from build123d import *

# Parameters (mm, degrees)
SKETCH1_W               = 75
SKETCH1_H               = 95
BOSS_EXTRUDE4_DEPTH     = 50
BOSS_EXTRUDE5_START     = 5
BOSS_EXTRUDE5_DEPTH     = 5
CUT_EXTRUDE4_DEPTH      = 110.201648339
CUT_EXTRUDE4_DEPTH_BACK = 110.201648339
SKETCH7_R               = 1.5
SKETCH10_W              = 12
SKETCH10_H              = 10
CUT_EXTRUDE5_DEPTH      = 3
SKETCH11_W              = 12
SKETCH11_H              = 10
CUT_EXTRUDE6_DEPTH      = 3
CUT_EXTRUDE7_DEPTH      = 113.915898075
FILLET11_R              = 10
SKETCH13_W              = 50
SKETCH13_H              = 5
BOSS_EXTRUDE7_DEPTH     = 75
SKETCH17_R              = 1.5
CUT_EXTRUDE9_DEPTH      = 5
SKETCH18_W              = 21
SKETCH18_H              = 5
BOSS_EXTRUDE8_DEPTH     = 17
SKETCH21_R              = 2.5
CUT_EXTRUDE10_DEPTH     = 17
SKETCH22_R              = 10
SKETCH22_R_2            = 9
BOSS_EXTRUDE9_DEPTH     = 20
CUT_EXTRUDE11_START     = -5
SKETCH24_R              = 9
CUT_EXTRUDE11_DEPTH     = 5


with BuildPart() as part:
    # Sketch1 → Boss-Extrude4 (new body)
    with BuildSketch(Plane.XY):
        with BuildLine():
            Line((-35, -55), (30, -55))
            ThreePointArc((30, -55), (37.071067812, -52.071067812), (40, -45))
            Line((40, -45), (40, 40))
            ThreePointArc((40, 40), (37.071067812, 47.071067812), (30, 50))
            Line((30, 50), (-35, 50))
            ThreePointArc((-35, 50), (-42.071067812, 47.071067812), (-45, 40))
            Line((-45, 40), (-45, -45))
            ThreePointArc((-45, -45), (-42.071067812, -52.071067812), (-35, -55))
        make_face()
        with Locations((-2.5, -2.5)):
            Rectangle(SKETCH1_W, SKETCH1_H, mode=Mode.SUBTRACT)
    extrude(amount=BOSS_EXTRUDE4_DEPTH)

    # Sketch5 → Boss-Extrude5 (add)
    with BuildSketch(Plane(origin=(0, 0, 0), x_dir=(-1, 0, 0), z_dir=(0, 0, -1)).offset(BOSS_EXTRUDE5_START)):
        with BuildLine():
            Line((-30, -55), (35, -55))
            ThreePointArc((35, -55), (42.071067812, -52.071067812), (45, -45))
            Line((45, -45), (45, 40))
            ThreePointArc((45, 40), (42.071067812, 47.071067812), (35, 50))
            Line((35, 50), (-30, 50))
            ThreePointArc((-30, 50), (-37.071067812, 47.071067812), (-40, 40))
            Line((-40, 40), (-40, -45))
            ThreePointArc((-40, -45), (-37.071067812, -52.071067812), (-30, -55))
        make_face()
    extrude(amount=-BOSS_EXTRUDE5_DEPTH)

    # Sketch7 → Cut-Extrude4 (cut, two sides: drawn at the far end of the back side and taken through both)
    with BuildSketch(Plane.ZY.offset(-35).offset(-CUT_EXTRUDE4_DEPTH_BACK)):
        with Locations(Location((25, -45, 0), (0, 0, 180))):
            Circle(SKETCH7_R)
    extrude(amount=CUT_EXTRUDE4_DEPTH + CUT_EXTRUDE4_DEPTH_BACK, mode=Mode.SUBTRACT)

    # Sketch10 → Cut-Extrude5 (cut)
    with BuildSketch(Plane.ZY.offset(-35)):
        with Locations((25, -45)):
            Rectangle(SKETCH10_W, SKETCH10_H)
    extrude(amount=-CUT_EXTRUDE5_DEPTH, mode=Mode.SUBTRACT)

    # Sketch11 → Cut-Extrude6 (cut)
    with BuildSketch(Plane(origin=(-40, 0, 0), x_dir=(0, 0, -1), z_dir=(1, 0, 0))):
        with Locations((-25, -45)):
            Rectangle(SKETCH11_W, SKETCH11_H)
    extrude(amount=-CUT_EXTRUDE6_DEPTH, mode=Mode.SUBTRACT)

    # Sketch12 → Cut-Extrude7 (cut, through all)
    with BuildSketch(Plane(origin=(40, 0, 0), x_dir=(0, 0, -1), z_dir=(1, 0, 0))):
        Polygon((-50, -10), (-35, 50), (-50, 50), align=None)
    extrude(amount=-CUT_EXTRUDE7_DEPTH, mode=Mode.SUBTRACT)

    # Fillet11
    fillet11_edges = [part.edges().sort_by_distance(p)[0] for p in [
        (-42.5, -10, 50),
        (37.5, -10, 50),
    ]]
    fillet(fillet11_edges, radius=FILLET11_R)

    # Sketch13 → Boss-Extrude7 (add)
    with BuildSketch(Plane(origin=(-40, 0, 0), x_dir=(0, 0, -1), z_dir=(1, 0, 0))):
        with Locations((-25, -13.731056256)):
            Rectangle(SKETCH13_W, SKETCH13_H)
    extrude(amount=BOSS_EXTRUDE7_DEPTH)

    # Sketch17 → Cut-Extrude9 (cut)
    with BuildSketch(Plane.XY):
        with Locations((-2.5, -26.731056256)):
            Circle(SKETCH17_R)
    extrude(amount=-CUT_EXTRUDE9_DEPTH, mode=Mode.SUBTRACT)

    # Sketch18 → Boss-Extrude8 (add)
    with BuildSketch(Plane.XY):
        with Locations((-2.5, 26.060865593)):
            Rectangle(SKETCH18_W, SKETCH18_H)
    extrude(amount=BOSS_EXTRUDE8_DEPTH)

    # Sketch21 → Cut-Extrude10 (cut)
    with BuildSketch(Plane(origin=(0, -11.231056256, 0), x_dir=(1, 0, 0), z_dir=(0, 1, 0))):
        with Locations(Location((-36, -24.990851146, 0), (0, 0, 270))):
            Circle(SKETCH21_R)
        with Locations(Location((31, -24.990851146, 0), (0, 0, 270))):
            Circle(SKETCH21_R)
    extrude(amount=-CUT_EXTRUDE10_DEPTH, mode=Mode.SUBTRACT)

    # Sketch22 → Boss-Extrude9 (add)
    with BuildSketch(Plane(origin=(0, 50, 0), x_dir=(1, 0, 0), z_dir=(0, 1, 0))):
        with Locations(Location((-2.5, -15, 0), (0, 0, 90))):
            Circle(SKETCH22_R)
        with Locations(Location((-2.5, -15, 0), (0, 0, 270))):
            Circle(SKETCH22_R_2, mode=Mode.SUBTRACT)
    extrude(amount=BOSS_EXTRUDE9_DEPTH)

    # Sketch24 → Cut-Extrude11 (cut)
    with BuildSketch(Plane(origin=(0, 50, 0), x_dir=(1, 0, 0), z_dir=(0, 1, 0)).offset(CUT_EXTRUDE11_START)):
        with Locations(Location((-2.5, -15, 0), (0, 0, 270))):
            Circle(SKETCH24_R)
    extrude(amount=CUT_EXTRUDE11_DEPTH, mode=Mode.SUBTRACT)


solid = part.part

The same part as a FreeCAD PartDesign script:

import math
import FreeCAD as App
import Part
import Sketcher

V = App.Vector


def edges_at(feature, points):
    """Names of the edges that pass closest to the given points."""
    edges = feature.Shape.Edges
    near = lambda p: min(range(len(edges)), key=lambda i: edges[i].distToShape(Part.Vertex(*p))[0])
    return sorted({f"Edge{near(p) + 1}" for p in points})


def add_polygon(sketch, points):
    """Adds a closed chain of lines whose ends are joined by coincident constraints."""
    first, n = sketch.GeometryCount, len(points)
    for a, b in zip(points, points[1:] + points[:1]):
        sketch.addGeometry(Part.LineSegment(App.Vector(*a, 0), App.Vector(*b, 0)), False)
    for i in range(n):
        sketch.addConstraint(Sketcher.Constraint("Coincident", first + i, 2, first + (i + 1) % n, 1))

doc = App.newDocument("Part")
body = doc.addObject("PartDesign::Body", "Body")

# Sketch on XY plane
sketch1 = body.newObject("Sketcher::SketchObject", "Sketch")
sketch1.AttachmentSupport = (doc.getObject("XY_Plane"), [""])
sketch1.MapMode = "FlatFace"
sketch1.addGeometry(Part.LineSegment(V(-35, -55, 0), V(30, -55, 0)), False)  # 0
sketch1.addGeometry(Part.ArcOfCircle(Part.Circle(V(30, -45, 0), V(0, 0, 1), 10), math.radians(-90), math.radians(0)), False)  # 1
sketch1.addGeometry(Part.LineSegment(V(40, -45, 0), V(40, 40, 0)), False)  # 2
sketch1.addGeometry(Part.ArcOfCircle(Part.Circle(V(30, 40, 0), V(0, 0, 1), 10), math.radians(0), math.radians(90)), False)  # 3
sketch1.addGeometry(Part.LineSegment(V(30, 50, 0), V(-35, 50, 0)), False)  # 4
sketch1.addGeometry(Part.ArcOfCircle(Part.Circle(V(-35, 40, 0), V(0, 0, 1), 10), math.radians(90), math.radians(180)), False)  # 5
sketch1.addGeometry(Part.LineSegment(V(-45, 40, 0), V(-45, -45, 0)), False)  # 6
sketch1.addGeometry(Part.ArcOfCircle(Part.Circle(V(-35, -45, 0), V(0, 0, 1), 10), math.radians(180), math.radians(270)), False)  # 7
add_polygon(sketch1, [(35, -50), (-40, -50), (-40, 45), (35, 45)])  # lines 8-11
sketch1.addConstraint([
    Sketcher.Constraint("Tangent", 0, 2, 1, 1),
    Sketcher.Constraint("Tangent", 1, 2, 2, 1),
    Sketcher.Constraint("Tangent", 2, 2, 3, 1),
    Sketcher.Constraint("Tangent", 3, 2, 4, 1),
    Sketcher.Constraint("Tangent", 4, 2, 5, 1),
    Sketcher.Constraint("Tangent", 5, 2, 6, 1),
    Sketcher.Constraint("Tangent", 6, 2, 7, 1),
    Sketcher.Constraint("Tangent", 7, 2, 0, 1),
    Sketcher.Constraint("Horizontal", 0),
    Sketcher.Constraint("Vertical", 2),
    Sketcher.Constraint("Horizontal", 4),
    Sketcher.Constraint("Vertical", 6),
    Sketcher.Constraint("Horizontal", 8),
    Sketcher.Constraint("Vertical", 9),
    Sketcher.Constraint("Horizontal", 10),
    Sketcher.Constraint("Vertical", 11),
    Sketcher.Constraint("Equal", 1, 3),
    Sketcher.Constraint("Equal", 3, 5),
    Sketcher.Constraint("Equal", 5, 7),
    Sketcher.Constraint("Symmetric", 1, 2, 9, 2, -1, 1),
    Sketcher.Constraint("Symmetric", 4, 2, 11, 2, -1, 1),
    Sketcher.Constraint("Radius", 1, 10.0),
    Sketcher.Constraint("DistanceX", 0, 1, 0, 2, 65.0),
    Sketcher.Constraint("DistanceY", 2, 1, 2, 2, 85.0),
    Sketcher.Constraint("DistanceX", -1, 1, 1, 3, 30.0),
    Sketcher.Constraint("DistanceY", 1, 3, -1, 1, 45.0),
])
pad1 = body.newObject("PartDesign::Pad", "Pad")
pad1.Profile = sketch1
pad1.Length = 50

# Sketch on XY plane
sketch2 = body.newObject("Sketcher::SketchObject", "Sketch001")
sketch2.AttachmentSupport = (doc.getObject("XY_Plane"), [""])
sketch2.MapMode = "FlatFace"
sketch2.AttachmentOffset = App.Placement(V(0, 0, -5), App.Rotation())
sketch2.addGeometry([
    Part.LineSegment(V(30, -55, 0), V(-35, -55, 0)),  # 0
    Part.ArcOfCircle(Part.Circle(V(-35, -45, 0), V(0, 0, 1), 10), math.radians(180), math.radians(270)),  # 1
    Part.LineSegment(V(-45, -45, 0), V(-45, 40, 0)),  # 2
    Part.ArcOfCircle(Part.Circle(V(-35, 40, 0), V(0, 0, 1), 10), math.radians(90), math.radians(180)),  # 3
    Part.LineSegment(V(-35, 50, 0), V(30, 50, 0)),  # 4
    Part.ArcOfCircle(Part.Circle(V(30, 40, 0), V(0, 0, 1), 10), math.radians(0), math.radians(90)),  # 5
    Part.LineSegment(V(40, 40, 0), V(40, -45, 0)),  # 6
    Part.ArcOfCircle(Part.Circle(V(30, -45, 0), V(0, 0, 1), 10), math.radians(-90), math.radians(0)),  # 7
], False)
sketch2.addConstraint([
    Sketcher.Constraint("Tangent", 0, 2, 1, 2),
    Sketcher.Constraint("Tangent", 1, 1, 2, 1),
    Sketcher.Constraint("Tangent", 2, 2, 3, 2),
    Sketcher.Constraint("Tangent", 3, 1, 4, 1),
    Sketcher.Constraint("Tangent", 4, 2, 5, 2),
    Sketcher.Constraint("Tangent", 5, 1, 6, 1),
    Sketcher.Constraint("Tangent", 6, 2, 7, 2),
    Sketcher.Constraint("Tangent", 7, 1, 0, 1),
    Sketcher.Constraint("Horizontal", 0),
    Sketcher.Constraint("Vertical", 2),
    Sketcher.Constraint("Horizontal", 4),
    Sketcher.Constraint("Vertical", 6),
    Sketcher.Constraint("Equal", 1, 3),
    Sketcher.Constraint("Equal", 3, 5),
    Sketcher.Constraint("Equal", 5, 7),
    Sketcher.Constraint("Radius", 1, 10.0),
    Sketcher.Constraint("DistanceX", 0, 2, 0, 1, 65.0),
    Sketcher.Constraint("DistanceY", 2, 1, 2, 2, 85.0),
    Sketcher.Constraint("DistanceX", 1, 3, -1, 1, 35.0),
    Sketcher.Constraint("DistanceY", 1, 3, -1, 1, 45.0),
])
pad2 = body.newObject("PartDesign::Pad", "Pad001")
pad2.Profile = sketch2
pad2.Length = 5

# Sketch on YZ plane
sketch3 = body.newObject("Sketcher::SketchObject", "Sketch002")
sketch3.AttachmentSupport = (doc.getObject("YZ_Plane"), [""])
sketch3.MapMode = "FlatFace"
sketch3.AttachmentOffset = App.Placement(V(0, 0, 35), App.Rotation())
sketch3.addGeometry(Part.Circle(V(-45, 25, 0), V(0, 0, 1), 1.5), False)
sketch3.addConstraint([
    Sketcher.Constraint("Diameter", 0, 3.0),
    Sketcher.Constraint("DistanceX", 0, 3, -1, 1, 45.0),
    Sketcher.Constraint("DistanceY", -1, 1, 0, 3, 25.0),
])
pocket1 = body.newObject("PartDesign::Pocket", "Pocket")
pocket1.Profile = sketch3
pocket1.Type = "ThroughAll"
pocket1.Midplane = True

# Sketch on YZ plane
sketch4 = body.newObject("Sketcher::SketchObject", "Sketch003")
sketch4.AttachmentSupport = (doc.getObject("YZ_Plane"), [""])
sketch4.MapMode = "FlatFace"
sketch4.AttachmentOffset = App.Placement(V(0, 0, 35), App.Rotation())
add_polygon(sketch4, [(-40, 19), (-50, 19), (-50, 31), (-40, 31)])  # lines 0-3
sketch4.addConstraint([
    Sketcher.Constraint("Horizontal", 0),
    Sketcher.Constraint("Vertical", 1),
    Sketcher.Constraint("Horizontal", 2),
    Sketcher.Constraint("Vertical", 3),
    Sketcher.Constraint("DistanceX", 0, 2, 0, 1, 10.0),
    Sketcher.Constraint("DistanceY", 1, 1, 1, 2, 12.0),
    Sketcher.Constraint("DistanceX", 0, 2, -1, 1, 50.0),
    Sketcher.Constraint("DistanceY", -1, 1, 0, 2, 19.0),
])
pocket2 = body.newObject("PartDesign::Pocket", "Pocket001")
pocket2.Profile = sketch4
pocket2.Length = 3
pocket2.Reversed = True

# Sketch on YZ plane
sketch5 = body.newObject("Sketcher::SketchObject", "Sketch004")
sketch5.AttachmentSupport = (doc.getObject("YZ_Plane"), [""])
sketch5.MapMode = "FlatFace"
sketch5.AttachmentOffset = App.Placement(V(0, 0, -40), App.Rotation())
add_polygon(sketch5, [(-40, 31), (-50, 31), (-50, 19), (-40, 19)])  # lines 0-3
sketch5.addConstraint([
    Sketcher.Constraint("Horizontal", 0),
    Sketcher.Constraint("Vertical", 1),
    Sketcher.Constraint("Horizontal", 2),
    Sketcher.Constraint("Vertical", 3),
    Sketcher.Constraint("DistanceX", 0, 2, 0, 1, 10.0),
    Sketcher.Constraint("DistanceY", 1, 2, 1, 1, 12.0),
    Sketcher.Constraint("DistanceX", 0, 2, -1, 1, 50.0),
    Sketcher.Constraint("DistanceY", -1, 1, 0, 2, 31.0),
])
pocket3 = body.newObject("PartDesign::Pocket", "Pocket002")
pocket3.Profile = sketch5
pocket3.Length = 3

# Sketch on YZ plane
sketch6 = body.newObject("Sketcher::SketchObject", "Sketch005")
sketch6.AttachmentSupport = (doc.getObject("YZ_Plane"), [""])
sketch6.MapMode = "FlatFace"
sketch6.AttachmentOffset = App.Placement(V(0, 0, 40), App.Rotation())
add_polygon(sketch6, [(-10, 50), (50, 35), (50, 50)])  # lines 0-2
sketch6.addConstraint([
    Sketcher.Constraint("Vertical", 1),
    Sketcher.Constraint("Horizontal", 2),
    Sketcher.Constraint("DistanceX", 2, 2, 2, 1, 60.0),
    Sketcher.Constraint("DistanceY", 1, 1, 1, 2, 15.0),
    Sketcher.Constraint("DistanceX", -1, 1, 0, 2, 50.0),
    Sketcher.Constraint("DistanceY", -1, 1, 0, 2, 35.0),
])
pocket4 = body.newObject("PartDesign::Pocket", "Pocket003")
pocket4.Profile = sketch6
pocket4.Type = "ThroughAll"
doc.recompute()

fillet = body.newObject("PartDesign::Fillet", "Fillet")
fillet.Base = (pocket4, edges_at(pocket4, [(-42.5, -10, 50), (37.5, -10, 50)]))
fillet.Radius = 10

# Sketch on YZ plane
sketch7 = body.newObject("Sketcher::SketchObject", "Sketch006")
sketch7.AttachmentSupport = (doc.getObject("YZ_Plane"), [""])
sketch7.MapMode = "FlatFace"
sketch7.AttachmentOffset = App.Placement(V(0, 0, -40), App.Rotation())
add_polygon(sketch7, [(-11.231056, 50), (-16.231056, 50), (-16.231056, 0), (-11.231056, 0)])  # lines 0-3
sketch7.addConstraint([
    Sketcher.Constraint("Horizontal", 0),
    Sketcher.Constraint("Vertical", 1),
    Sketcher.Constraint("Horizontal", 2),
    Sketcher.Constraint("Vertical", 3),
    Sketcher.Constraint("PointOnObject", 1, 2, -1),
    Sketcher.Constraint("DistanceX", 0, 2, 0, 1, 5.0),
    Sketcher.Constraint("DistanceY", 1, 2, 1, 1, 50.0),
    Sketcher.Constraint("DistanceX", 0, 2, -1, 1, 16.231056),
])
pad3 = body.newObject("PartDesign::Pad", "Pad002")
pad3.Profile = sketch7
pad3.Length = 75

# Sketch on XY plane
sketch8 = body.newObject("Sketcher::SketchObject", "Sketch007")
sketch8.AttachmentSupport = (doc.getObject("XY_Plane"), [""])
sketch8.MapMode = "FlatFace"
sketch8.addGeometry(Part.Circle(V(-2.5, -26.731056, 0), V(0, 0, 1), 1.5), False)
sketch8.addConstraint([
    Sketcher.Constraint("Diameter", 0, 3.0),
    Sketcher.Constraint("DistanceX", 0, 3, -1, 1, 2.5),
    Sketcher.Constraint("DistanceY", 0, 3, -1, 1, 26.731056),
])
pocket5 = body.newObject("PartDesign::Pocket", "Pocket004")
pocket5.Profile = sketch8
pocket5.Length = 5

# Sketch on XY plane
sketch9 = body.newObject("Sketcher::SketchObject", "Sketch008")
sketch9.AttachmentSupport = (doc.getObject("XY_Plane"), [""])
sketch9.MapMode = "FlatFace"
add_polygon(sketch9, [(-13, 28.560866), (-13, 23.560866), (8, 23.560866), (8, 28.560866)])  # lines 0-3
sketch9.addConstraint([
    Sketcher.Constraint("Vertical", 0),
    Sketcher.Constraint("Horizontal", 1),
    Sketcher.Constraint("Vertical", 2),
    Sketcher.Constraint("Horizontal", 3),
    Sketcher.Constraint("DistanceX", 1, 1, 1, 2, 21.0),
    Sketcher.Constraint("DistanceY", 0, 2, 0, 1, 5.0),
    Sketcher.Constraint("DistanceX", 0, 2, -1, 1, 13.0),
    Sketcher.Constraint("DistanceY", -1, 1, 0, 2, 23.560866),
])
pad4 = body.newObject("PartDesign::Pad", "Pad003")
pad4.Profile = sketch9
pad4.Length = 17

# Sketch on XZ plane
sketch10 = body.newObject("Sketcher::SketchObject", "Sketch009")
sketch10.AttachmentSupport = (doc.getObject("XZ_Plane"), [""])
sketch10.MapMode = "FlatFace"
sketch10.AttachmentOffset = App.Placement(V(0, 0, 11.231056), App.Rotation())
sketch10.addGeometry([
    Part.Circle(V(-36, 24.990851, 0), V(0, 0, 1), 2.5),
    Part.Circle(V(31, 24.990851, 0), V(0, 0, 1), 2.5),
], False)
sketch10.addConstraint([
    Sketcher.Constraint("Equal", 0, 1),
    Sketcher.Constraint("Horizontal", 0, 3, 1, 3),
    Sketcher.Constraint("Diameter", 0, 5.0),
    Sketcher.Constraint("DistanceX", 0, 3, -1, 1, 36.0),
    Sketcher.Constraint("DistanceX", -1, 1, 1, 3, 31.0),
    Sketcher.Constraint("DistanceY", -1, 1, 0, 3, 24.990851),
])
pocket6 = body.newObject("PartDesign::Pocket", "Pocket005")
pocket6.Profile = sketch10
pocket6.Length = 17
pocket6.Reversed = True

# Sketch on XZ plane
sketch11 = body.newObject("Sketcher::SketchObject", "Sketch010")
sketch11.AttachmentSupport = (doc.getObject("XZ_Plane"), [""])
sketch11.MapMode = "FlatFace"
sketch11.AttachmentOffset = App.Placement(V(0, 0, -50), App.Rotation())
sketch11.addGeometry([
    Part.Circle(V(-2.5, 15, 0), V(0, 0, 1), 10),
    Part.Circle(V(-2.5, 15, 0), V(0, 0, 1), 9),
], False)
sketch11.addConstraint([
    Sketcher.Constraint("Coincident", 1, 3, 0, 3),
    Sketcher.Constraint("Diameter", 0, 20.0),
    Sketcher.Constraint("Diameter", 1, 18.0),
    Sketcher.Constraint("DistanceY", -1, 1, 0, 3, 15.0),
    Sketcher.Constraint("DistanceX", 0, 3, -1, 1, 2.5),
])
pad5 = body.newObject("PartDesign::Pad", "Pad004")
pad5.Profile = sketch11
pad5.Length = 20
pad5.Reversed = True

# Sketch on XZ plane
sketch12 = body.newObject("Sketcher::SketchObject", "Sketch011")
sketch12.AttachmentSupport = (doc.getObject("XZ_Plane"), [""])
sketch12.MapMode = "FlatFace"
sketch12.AttachmentOffset = App.Placement(V(0, 0, -45), App.Rotation())
sketch12.addGeometry(Part.Circle(V(-2.5, 15, 0), V(0, 0, 1), 9), False)
sketch12.addConstraint([
    Sketcher.Constraint("Diameter", 0, 18.0),
    Sketcher.Constraint("DistanceY", -1, 1, 0, 3, 15.0),
    Sketcher.Constraint("DistanceX", 0, 3, -1, 1, 2.5),
])
pocket7 = body.newObject("PartDesign::Pocket", "Pocket006")
pocket7.Profile = sketch12
pocket7.Length = 5

doc.recompute()
